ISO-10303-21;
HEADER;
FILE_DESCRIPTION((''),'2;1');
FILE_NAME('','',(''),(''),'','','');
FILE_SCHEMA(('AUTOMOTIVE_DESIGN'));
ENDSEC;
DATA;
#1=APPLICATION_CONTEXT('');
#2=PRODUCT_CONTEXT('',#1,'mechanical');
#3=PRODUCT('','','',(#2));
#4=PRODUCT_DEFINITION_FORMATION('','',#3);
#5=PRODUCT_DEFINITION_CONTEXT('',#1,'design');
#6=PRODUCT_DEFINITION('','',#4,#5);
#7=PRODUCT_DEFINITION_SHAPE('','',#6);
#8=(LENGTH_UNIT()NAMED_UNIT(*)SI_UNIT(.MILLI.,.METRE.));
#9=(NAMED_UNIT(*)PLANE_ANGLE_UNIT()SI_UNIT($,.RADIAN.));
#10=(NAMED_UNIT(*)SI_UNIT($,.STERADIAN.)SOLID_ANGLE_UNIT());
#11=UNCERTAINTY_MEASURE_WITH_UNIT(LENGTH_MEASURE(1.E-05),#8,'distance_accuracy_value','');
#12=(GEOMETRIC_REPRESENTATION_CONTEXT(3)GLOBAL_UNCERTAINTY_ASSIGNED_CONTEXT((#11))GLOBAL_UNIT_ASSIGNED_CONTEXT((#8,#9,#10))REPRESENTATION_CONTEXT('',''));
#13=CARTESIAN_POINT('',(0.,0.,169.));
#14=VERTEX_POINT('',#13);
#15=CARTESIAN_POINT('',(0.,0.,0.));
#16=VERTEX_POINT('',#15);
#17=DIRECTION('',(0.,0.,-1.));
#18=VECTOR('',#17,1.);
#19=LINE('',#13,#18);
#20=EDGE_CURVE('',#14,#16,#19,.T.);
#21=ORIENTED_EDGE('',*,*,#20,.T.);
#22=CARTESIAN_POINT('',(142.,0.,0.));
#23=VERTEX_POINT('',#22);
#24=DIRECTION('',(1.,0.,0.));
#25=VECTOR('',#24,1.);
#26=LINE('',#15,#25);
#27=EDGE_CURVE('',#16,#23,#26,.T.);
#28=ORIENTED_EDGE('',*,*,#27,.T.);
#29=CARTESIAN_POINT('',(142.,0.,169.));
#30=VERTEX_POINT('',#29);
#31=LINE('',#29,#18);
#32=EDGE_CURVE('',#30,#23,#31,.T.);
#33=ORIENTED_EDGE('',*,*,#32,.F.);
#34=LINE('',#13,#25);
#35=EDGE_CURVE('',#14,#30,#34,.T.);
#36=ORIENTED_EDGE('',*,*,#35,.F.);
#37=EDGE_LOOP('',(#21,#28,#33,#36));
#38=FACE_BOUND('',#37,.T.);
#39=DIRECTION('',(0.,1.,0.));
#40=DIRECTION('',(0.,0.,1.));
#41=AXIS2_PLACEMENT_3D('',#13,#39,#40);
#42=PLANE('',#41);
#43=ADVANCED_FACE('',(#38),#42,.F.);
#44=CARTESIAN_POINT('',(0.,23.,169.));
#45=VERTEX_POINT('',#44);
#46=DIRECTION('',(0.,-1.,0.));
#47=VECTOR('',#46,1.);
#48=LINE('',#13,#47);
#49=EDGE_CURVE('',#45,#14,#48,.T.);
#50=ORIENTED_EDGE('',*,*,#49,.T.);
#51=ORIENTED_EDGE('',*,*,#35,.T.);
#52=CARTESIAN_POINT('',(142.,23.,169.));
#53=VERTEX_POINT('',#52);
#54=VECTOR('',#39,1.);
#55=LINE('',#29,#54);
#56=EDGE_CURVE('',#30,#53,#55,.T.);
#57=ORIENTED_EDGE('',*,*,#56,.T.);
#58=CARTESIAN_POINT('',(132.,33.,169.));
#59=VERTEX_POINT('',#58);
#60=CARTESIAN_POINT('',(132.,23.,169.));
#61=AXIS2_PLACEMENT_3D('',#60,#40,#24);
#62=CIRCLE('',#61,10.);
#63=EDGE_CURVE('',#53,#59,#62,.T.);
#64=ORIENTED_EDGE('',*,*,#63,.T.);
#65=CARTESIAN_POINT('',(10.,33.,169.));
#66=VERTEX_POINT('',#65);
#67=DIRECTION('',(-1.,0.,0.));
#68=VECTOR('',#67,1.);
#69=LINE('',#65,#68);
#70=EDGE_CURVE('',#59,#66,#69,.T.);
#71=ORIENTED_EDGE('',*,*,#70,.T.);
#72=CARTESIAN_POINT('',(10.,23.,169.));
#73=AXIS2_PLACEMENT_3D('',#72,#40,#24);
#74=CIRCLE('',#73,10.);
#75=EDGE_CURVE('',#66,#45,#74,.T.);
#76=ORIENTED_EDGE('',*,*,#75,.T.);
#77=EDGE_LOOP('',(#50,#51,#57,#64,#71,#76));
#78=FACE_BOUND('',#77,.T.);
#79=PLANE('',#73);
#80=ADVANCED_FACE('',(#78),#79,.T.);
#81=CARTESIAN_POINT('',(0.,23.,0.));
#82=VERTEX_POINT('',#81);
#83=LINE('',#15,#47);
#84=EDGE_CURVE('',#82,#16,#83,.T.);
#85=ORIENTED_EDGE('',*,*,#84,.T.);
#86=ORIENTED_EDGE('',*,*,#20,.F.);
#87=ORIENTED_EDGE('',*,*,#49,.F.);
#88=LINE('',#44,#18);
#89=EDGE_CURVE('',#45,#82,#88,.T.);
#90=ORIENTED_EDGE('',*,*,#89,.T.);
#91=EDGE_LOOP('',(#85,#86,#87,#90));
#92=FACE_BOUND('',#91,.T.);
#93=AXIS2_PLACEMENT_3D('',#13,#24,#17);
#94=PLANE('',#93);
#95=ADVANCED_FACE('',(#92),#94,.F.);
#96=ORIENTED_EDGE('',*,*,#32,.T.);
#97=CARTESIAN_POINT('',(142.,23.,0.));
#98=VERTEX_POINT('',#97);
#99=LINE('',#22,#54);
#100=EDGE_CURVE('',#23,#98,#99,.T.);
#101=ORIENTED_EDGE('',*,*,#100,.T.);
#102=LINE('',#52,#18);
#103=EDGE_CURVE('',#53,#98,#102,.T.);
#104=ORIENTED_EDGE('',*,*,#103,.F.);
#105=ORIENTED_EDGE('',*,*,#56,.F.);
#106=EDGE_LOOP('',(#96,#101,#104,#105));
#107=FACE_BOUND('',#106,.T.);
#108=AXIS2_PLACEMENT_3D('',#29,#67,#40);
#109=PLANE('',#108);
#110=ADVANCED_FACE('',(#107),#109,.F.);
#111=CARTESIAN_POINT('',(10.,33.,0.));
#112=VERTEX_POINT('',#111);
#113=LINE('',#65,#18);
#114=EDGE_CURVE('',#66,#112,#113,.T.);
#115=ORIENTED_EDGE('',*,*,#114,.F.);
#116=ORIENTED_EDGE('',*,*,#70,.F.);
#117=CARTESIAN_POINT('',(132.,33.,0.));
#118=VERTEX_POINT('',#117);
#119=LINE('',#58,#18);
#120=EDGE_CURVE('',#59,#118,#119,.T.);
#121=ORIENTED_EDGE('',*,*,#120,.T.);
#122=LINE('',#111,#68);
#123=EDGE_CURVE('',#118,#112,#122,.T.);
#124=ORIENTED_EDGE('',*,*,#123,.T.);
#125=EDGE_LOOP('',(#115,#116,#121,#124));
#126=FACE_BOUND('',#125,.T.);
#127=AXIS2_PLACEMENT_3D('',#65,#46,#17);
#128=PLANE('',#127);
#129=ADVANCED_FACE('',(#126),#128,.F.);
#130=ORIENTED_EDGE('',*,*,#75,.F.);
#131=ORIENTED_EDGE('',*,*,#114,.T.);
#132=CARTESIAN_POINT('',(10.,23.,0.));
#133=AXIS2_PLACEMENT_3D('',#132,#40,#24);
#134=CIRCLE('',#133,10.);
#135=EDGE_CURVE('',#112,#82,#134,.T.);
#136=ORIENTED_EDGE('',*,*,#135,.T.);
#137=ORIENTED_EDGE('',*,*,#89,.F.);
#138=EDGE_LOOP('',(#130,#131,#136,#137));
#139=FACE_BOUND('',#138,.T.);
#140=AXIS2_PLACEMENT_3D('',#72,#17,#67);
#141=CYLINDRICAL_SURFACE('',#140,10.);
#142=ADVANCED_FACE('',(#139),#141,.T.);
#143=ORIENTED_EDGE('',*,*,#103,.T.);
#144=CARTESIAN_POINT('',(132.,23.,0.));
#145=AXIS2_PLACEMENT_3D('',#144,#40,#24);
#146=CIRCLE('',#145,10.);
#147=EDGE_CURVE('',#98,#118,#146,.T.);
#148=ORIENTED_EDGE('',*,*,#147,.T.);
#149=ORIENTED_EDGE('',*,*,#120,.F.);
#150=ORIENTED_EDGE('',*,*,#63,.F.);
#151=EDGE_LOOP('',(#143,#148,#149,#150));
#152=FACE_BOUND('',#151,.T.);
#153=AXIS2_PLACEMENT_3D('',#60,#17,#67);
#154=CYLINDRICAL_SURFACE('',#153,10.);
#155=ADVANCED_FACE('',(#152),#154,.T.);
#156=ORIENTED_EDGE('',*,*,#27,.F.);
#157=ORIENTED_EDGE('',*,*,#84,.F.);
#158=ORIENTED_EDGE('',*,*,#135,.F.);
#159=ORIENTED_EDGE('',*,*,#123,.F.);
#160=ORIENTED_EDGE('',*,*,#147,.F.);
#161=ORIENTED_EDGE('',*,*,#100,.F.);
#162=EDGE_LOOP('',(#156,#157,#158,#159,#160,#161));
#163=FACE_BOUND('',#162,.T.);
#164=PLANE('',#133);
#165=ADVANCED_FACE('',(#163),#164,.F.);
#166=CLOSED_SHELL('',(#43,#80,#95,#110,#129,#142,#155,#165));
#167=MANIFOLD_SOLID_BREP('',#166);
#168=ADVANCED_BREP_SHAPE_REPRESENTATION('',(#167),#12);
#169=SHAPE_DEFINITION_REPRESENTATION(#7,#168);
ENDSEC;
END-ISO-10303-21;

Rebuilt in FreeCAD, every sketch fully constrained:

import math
import FreeCAD as App
import Part
import Sketcher
Q = App.Units.Quantity

doc = App.newDocument("Part")
params = doc.addObject("Spreadsheet::Sheet", "Params")
for row, (alias, value) in enumerate([
    ("sketch1_radius", "10 mm"),
    ("sketch1_width", "142 mm"),
    ("sketch1_height", "23 mm"),
    ("pad1_length", "169 mm"),
], start=1):
    params.set(f"A{row}", alias)
    params.set(f"B{row}", "=" + value)
    params.setAlias(f"B{row}", alias)

body = doc.addObject("PartDesign::Body", "Body")

# Sketch on XY plane
sketch1 = body.newObject("Sketcher::SketchObject", "Sketch")
sketch1.AttachmentSupport = (doc.getObject("XY_Plane"), [""])
sketch1.MapMode = "FlatFace"
sketch1.addGeometry(Part.LineSegment(App.Vector(0, 0, 0), App.Vector(142, 0, 0)), False)
sketch1.addGeometry(Part.LineSegment(App.Vector(142, 0, 0), App.Vector(142, 23, 0)), False)
sketch1.addGeometry(Part.ArcOfCircle(Part.Circle(App.Vector(132, 23, 0), App.Vector(0, 0, 1), 10), math.radians(0), math.radians(90)), False)
sketch1.addGeometry(Part.LineSegment(App.Vector(132, 33, 0), App.Vector(10, 33, 0)), False)
sketch1.addGeometry(Part.ArcOfCircle(Part.Circle(App.Vector(10, 23, 0), App.Vector(0, 0, 1), 10), math.radians(90), math.radians(180)), False)
sketch1.addGeometry(Part.LineSegment(App.Vector(0, 23, 0), App.Vector(0, 0, 0)), False)
sketch1.addConstraint(Sketcher.Constraint("Coincident", 0, 2, 1, 1))
sketch1.addConstraint(Sketcher.Constraint("Tangent", 1, 2, 2, 1))
sketch1.addConstraint(Sketcher.Constraint("Tangent", 2, 2, 3, 1))
sketch1.addConstraint(Sketcher.Constraint("Tangent", 3, 2, 4, 1))
sketch1.addConstraint(Sketcher.Constraint("Tangent", 4, 2, 5, 1))
sketch1.addConstraint(Sketcher.Constraint("Coincident", 5, 2, 0, 1))
sketch1.addConstraint(Sketcher.Constraint("Horizontal", 0))
sketch1.addConstraint(Sketcher.Constraint("Vertical", 1))
sketch1.addConstraint(Sketcher.Constraint("Horizontal", 3))
sketch1.addConstraint(Sketcher.Constraint("Vertical", 5))
sketch1.addConstraint(Sketcher.Constraint("Coincident", 5, 2, -1, 1))
sketch1.addConstraint(Sketcher.Constraint("Equal", 2, 4))
sketch1.addConstraint(Sketcher.Constraint("Radius", 2, Q("10 mm")))
sketch1.addConstraint(Sketcher.Constraint("DistanceX", 0, 1, 0, 2, Q("142 mm")))
sketch1.addConstraint(Sketcher.Constraint("DistanceY", 1, 1, 1, 2, Q("23 mm")))
sketch1.setExpression("Constraints[12]", "Params.sketch1_radius")
sketch1.setExpression("Constraints[13]", "Params.sketch1_width")
sketch1.setExpression("Constraints[14]", "Params.sketch1_height")
pad1 = body.newObject("PartDesign::Pad", "Pad")
pad1.Profile = sketch1
pad1.setExpression("Length", "Params.pad1_length")

doc.recompute()
